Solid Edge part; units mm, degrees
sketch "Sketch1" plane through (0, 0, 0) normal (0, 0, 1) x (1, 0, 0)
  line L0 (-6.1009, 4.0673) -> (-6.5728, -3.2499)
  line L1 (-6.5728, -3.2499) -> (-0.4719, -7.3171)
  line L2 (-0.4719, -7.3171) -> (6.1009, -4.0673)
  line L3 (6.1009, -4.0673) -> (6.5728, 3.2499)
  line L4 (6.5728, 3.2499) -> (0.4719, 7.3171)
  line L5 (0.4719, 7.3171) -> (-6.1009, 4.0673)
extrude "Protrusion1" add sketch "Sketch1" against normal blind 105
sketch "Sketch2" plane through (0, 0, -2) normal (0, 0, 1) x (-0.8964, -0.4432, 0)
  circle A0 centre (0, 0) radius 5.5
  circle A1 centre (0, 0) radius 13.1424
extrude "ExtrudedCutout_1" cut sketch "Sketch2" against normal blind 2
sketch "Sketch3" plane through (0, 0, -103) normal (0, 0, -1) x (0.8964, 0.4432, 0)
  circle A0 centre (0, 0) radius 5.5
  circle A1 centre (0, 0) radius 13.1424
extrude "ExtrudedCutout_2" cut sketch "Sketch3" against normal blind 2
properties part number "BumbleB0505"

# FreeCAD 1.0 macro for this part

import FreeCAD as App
import Part
import Sketcher
from FreeCAD import Vector
Q = App.Units.Quantity

doc = App.newDocument("Part")
params = doc.addObject("Spreadsheet::Sheet", "Params")
for row, (alias, value) in enumerate([
    ("pad1_length", "105 mm"),
    ("sketch2_diameter", "11 mm"),
    ("pocket1_length", "2 mm"),
    ("sketch3_diameter", "11 mm"),
    ("pocket2_length", "2 mm"),
], start=1):
    params.set(f"A{row}", alias)
    params.set(f"B{row}", "=" + value)
    params.setAlias(f"B{row}", alias)

body = doc.addObject("PartDesign::Body", "Body")

# Sketch on XY plane
sketch1 = body.newObject("Sketcher::SketchObject", "Sketch")
sketch1.AttachmentSupport = (doc.getObject("XY_Plane"), [""])
sketch1.MapMode = "FlatFace"
sketch1.addGeometry(Part.LineSegment(Vector(0.4719, 7.3171, 0), Vector(-6.1009, 4.0673, 0)), False)
sketch1.addGeometry(Part.LineSegment(Vector(-6.1009, 4.0673, 0), Vector(-6.5728, -3.2499, 0)), False)
sketch1.addGeometry(Part.LineSegment(Vector(-6.5728, -3.2499, 0), Vector(-0.4719, -7.3171, 0)), False)
sketch1.addGeometry(Part.LineSegment(Vector(-0.4719, -7.3171, 0), Vector(6.1009, -4.0673, 0)), False)
sketch1.addGeometry(Part.LineSegment(Vector(6.1009, -4.0673, 0), Vector(6.5728, 3.2499, 0)), False)
sketch1.addGeometry(Part.LineSegment(Vector(6.5728, 3.2499, 0), Vector(0.4719, 7.3171, 0)), False)
sketch1.addConstraint(Sketcher.Constraint("Coincident", 0, 2, 1, 1))
sketch1.addConstraint(Sketcher.Constraint("Coincident", 1, 2, 2, 1))
sketch1.addConstraint(Sketcher.Constraint("Coincident", 2, 2, 3, 1))
sketch1.addConstraint(Sketcher.Constraint("Coincident", 3, 2, 4, 1))
sketch1.addConstraint(Sketcher.Constraint("Coincident", 4, 2, 5, 1))
sketch1.addConstraint(Sketcher.Constraint("Coincident", 5, 2, 0, 1))
sketch1.addConstraint(Sketcher.Constraint("Symmetric", 0, 2, 3, 2, -1, 1))
sketch1.addConstraint(Sketcher.Constraint("Symmetric", 1, 2, 4, 2, -1, 1))
sketch1.addConstraint(Sketcher.Constraint("Symmetric", 2, 2, 5, 2, -1, 1))
sketch1.addConstraint(Sketcher.Constraint("Equal", 0, 1))
sketch1.addConstraint(Sketcher.Constraint("Equal", 1, 2))
sketch1.addConstraint(Sketcher.Constraint("Angle", 0, Q("-153.6908 deg")))
sketch1.addConstraint(Sketcher.Constraint("Angle", 1, Q("-93.69 deg")))
sketch1.addConstraint(Sketcher.Constraint("Angle", 2, Q("-33.6896 deg")))
sketch1.addConstraint(Sketcher.Constraint("DistanceY", 1, 2, -1, 1, 3.25))
pad1 = body.newObject("PartDesign::Pad", "Pad")
pad1.Profile = sketch1
pad1.setExpression("Length", "Params.pad1_length")
pad1.Reversed = True

# Sketch on XY plane
sketch2 = body.newObject("Sketcher::SketchObject", "Sketch001")
sketch2.AttachmentSupport = (doc.getObject("XY_Plane"), [""])
sketch2.MapMode = "FlatFace"
sketch2.AttachmentOffset = App.Placement(Vector(0, 0, -2), App.Rotation())
sketch2.addGeometry(Part.Circle(Vector(0, 0, 0), Vector(0, 0, 1), 13.1424), False)
sketch2.addGeometry(Part.Circle(Vector(0, 0, 0), Vector(0, 0, 1), 5.5), False)
sketch2.addConstraint(Sketcher.Constraint("Coincident", 0, 3, -1, 1))
sketch2.addConstraint(Sketcher.Constraint("Coincident", 1, 3, -1, 1))
sketch2.addConstraint(Sketcher.Constraint("Diameter", 1, 11.0))
sketch2.addConstraint(Sketcher.Constraint("Diameter", 0, 26.2848))
sketch2.setExpression("Constraints[2]", "Params.sketch2_diameter")
pocket1 = body.newObject("PartDesign::Pocket", "Pocket")
pocket1.Profile = sketch2
pocket1.setExpression("Length", "Params.pocket1_length")

# Sketch on XY plane
sketch3 = body.newObject("Sketcher::SketchObject", "Sketch002")
sketch3.AttachmentSupport = (doc.getObject("XY_Plane"), [""])
sketch3.MapMode = "FlatFace"
sketch3.AttachmentOffset = App.Placement(Vector(0, 0, -103), App.Rotation())
sketch3.addGeometry(Part.Circle(Vector(0, 0, 0), Vector(0, 0, 1), 13.1424), False)
sketch3.addGeometry(Part.Circle(Vector(0, 0, 0), Vector(0, 0, 1), 5.5), False)
sketch3.addConstraint(Sketcher.Constraint("Coincident", 0, 3, -1, 1))
sketch3.addConstraint(Sketcher.Constraint("Coincident", 1, 3, -1, 1))
sketch3.addConstraint(Sketcher.Constraint("Diameter", 1, 11.0))
sketch3.addConstraint(Sketcher.Constraint("Diameter", 0, 26.2848))
sketch3.setExpression("Constraints[2]", "Params.sketch3_diameter")
pocket2 = body.newObject("PartDesign::Pocket", "Pocket001")
pocket2.Profile = sketch3
pocket2.setExpression("Length", "Params.pocket2_length")
pocket2.Reversed = True

doc.recompute()
